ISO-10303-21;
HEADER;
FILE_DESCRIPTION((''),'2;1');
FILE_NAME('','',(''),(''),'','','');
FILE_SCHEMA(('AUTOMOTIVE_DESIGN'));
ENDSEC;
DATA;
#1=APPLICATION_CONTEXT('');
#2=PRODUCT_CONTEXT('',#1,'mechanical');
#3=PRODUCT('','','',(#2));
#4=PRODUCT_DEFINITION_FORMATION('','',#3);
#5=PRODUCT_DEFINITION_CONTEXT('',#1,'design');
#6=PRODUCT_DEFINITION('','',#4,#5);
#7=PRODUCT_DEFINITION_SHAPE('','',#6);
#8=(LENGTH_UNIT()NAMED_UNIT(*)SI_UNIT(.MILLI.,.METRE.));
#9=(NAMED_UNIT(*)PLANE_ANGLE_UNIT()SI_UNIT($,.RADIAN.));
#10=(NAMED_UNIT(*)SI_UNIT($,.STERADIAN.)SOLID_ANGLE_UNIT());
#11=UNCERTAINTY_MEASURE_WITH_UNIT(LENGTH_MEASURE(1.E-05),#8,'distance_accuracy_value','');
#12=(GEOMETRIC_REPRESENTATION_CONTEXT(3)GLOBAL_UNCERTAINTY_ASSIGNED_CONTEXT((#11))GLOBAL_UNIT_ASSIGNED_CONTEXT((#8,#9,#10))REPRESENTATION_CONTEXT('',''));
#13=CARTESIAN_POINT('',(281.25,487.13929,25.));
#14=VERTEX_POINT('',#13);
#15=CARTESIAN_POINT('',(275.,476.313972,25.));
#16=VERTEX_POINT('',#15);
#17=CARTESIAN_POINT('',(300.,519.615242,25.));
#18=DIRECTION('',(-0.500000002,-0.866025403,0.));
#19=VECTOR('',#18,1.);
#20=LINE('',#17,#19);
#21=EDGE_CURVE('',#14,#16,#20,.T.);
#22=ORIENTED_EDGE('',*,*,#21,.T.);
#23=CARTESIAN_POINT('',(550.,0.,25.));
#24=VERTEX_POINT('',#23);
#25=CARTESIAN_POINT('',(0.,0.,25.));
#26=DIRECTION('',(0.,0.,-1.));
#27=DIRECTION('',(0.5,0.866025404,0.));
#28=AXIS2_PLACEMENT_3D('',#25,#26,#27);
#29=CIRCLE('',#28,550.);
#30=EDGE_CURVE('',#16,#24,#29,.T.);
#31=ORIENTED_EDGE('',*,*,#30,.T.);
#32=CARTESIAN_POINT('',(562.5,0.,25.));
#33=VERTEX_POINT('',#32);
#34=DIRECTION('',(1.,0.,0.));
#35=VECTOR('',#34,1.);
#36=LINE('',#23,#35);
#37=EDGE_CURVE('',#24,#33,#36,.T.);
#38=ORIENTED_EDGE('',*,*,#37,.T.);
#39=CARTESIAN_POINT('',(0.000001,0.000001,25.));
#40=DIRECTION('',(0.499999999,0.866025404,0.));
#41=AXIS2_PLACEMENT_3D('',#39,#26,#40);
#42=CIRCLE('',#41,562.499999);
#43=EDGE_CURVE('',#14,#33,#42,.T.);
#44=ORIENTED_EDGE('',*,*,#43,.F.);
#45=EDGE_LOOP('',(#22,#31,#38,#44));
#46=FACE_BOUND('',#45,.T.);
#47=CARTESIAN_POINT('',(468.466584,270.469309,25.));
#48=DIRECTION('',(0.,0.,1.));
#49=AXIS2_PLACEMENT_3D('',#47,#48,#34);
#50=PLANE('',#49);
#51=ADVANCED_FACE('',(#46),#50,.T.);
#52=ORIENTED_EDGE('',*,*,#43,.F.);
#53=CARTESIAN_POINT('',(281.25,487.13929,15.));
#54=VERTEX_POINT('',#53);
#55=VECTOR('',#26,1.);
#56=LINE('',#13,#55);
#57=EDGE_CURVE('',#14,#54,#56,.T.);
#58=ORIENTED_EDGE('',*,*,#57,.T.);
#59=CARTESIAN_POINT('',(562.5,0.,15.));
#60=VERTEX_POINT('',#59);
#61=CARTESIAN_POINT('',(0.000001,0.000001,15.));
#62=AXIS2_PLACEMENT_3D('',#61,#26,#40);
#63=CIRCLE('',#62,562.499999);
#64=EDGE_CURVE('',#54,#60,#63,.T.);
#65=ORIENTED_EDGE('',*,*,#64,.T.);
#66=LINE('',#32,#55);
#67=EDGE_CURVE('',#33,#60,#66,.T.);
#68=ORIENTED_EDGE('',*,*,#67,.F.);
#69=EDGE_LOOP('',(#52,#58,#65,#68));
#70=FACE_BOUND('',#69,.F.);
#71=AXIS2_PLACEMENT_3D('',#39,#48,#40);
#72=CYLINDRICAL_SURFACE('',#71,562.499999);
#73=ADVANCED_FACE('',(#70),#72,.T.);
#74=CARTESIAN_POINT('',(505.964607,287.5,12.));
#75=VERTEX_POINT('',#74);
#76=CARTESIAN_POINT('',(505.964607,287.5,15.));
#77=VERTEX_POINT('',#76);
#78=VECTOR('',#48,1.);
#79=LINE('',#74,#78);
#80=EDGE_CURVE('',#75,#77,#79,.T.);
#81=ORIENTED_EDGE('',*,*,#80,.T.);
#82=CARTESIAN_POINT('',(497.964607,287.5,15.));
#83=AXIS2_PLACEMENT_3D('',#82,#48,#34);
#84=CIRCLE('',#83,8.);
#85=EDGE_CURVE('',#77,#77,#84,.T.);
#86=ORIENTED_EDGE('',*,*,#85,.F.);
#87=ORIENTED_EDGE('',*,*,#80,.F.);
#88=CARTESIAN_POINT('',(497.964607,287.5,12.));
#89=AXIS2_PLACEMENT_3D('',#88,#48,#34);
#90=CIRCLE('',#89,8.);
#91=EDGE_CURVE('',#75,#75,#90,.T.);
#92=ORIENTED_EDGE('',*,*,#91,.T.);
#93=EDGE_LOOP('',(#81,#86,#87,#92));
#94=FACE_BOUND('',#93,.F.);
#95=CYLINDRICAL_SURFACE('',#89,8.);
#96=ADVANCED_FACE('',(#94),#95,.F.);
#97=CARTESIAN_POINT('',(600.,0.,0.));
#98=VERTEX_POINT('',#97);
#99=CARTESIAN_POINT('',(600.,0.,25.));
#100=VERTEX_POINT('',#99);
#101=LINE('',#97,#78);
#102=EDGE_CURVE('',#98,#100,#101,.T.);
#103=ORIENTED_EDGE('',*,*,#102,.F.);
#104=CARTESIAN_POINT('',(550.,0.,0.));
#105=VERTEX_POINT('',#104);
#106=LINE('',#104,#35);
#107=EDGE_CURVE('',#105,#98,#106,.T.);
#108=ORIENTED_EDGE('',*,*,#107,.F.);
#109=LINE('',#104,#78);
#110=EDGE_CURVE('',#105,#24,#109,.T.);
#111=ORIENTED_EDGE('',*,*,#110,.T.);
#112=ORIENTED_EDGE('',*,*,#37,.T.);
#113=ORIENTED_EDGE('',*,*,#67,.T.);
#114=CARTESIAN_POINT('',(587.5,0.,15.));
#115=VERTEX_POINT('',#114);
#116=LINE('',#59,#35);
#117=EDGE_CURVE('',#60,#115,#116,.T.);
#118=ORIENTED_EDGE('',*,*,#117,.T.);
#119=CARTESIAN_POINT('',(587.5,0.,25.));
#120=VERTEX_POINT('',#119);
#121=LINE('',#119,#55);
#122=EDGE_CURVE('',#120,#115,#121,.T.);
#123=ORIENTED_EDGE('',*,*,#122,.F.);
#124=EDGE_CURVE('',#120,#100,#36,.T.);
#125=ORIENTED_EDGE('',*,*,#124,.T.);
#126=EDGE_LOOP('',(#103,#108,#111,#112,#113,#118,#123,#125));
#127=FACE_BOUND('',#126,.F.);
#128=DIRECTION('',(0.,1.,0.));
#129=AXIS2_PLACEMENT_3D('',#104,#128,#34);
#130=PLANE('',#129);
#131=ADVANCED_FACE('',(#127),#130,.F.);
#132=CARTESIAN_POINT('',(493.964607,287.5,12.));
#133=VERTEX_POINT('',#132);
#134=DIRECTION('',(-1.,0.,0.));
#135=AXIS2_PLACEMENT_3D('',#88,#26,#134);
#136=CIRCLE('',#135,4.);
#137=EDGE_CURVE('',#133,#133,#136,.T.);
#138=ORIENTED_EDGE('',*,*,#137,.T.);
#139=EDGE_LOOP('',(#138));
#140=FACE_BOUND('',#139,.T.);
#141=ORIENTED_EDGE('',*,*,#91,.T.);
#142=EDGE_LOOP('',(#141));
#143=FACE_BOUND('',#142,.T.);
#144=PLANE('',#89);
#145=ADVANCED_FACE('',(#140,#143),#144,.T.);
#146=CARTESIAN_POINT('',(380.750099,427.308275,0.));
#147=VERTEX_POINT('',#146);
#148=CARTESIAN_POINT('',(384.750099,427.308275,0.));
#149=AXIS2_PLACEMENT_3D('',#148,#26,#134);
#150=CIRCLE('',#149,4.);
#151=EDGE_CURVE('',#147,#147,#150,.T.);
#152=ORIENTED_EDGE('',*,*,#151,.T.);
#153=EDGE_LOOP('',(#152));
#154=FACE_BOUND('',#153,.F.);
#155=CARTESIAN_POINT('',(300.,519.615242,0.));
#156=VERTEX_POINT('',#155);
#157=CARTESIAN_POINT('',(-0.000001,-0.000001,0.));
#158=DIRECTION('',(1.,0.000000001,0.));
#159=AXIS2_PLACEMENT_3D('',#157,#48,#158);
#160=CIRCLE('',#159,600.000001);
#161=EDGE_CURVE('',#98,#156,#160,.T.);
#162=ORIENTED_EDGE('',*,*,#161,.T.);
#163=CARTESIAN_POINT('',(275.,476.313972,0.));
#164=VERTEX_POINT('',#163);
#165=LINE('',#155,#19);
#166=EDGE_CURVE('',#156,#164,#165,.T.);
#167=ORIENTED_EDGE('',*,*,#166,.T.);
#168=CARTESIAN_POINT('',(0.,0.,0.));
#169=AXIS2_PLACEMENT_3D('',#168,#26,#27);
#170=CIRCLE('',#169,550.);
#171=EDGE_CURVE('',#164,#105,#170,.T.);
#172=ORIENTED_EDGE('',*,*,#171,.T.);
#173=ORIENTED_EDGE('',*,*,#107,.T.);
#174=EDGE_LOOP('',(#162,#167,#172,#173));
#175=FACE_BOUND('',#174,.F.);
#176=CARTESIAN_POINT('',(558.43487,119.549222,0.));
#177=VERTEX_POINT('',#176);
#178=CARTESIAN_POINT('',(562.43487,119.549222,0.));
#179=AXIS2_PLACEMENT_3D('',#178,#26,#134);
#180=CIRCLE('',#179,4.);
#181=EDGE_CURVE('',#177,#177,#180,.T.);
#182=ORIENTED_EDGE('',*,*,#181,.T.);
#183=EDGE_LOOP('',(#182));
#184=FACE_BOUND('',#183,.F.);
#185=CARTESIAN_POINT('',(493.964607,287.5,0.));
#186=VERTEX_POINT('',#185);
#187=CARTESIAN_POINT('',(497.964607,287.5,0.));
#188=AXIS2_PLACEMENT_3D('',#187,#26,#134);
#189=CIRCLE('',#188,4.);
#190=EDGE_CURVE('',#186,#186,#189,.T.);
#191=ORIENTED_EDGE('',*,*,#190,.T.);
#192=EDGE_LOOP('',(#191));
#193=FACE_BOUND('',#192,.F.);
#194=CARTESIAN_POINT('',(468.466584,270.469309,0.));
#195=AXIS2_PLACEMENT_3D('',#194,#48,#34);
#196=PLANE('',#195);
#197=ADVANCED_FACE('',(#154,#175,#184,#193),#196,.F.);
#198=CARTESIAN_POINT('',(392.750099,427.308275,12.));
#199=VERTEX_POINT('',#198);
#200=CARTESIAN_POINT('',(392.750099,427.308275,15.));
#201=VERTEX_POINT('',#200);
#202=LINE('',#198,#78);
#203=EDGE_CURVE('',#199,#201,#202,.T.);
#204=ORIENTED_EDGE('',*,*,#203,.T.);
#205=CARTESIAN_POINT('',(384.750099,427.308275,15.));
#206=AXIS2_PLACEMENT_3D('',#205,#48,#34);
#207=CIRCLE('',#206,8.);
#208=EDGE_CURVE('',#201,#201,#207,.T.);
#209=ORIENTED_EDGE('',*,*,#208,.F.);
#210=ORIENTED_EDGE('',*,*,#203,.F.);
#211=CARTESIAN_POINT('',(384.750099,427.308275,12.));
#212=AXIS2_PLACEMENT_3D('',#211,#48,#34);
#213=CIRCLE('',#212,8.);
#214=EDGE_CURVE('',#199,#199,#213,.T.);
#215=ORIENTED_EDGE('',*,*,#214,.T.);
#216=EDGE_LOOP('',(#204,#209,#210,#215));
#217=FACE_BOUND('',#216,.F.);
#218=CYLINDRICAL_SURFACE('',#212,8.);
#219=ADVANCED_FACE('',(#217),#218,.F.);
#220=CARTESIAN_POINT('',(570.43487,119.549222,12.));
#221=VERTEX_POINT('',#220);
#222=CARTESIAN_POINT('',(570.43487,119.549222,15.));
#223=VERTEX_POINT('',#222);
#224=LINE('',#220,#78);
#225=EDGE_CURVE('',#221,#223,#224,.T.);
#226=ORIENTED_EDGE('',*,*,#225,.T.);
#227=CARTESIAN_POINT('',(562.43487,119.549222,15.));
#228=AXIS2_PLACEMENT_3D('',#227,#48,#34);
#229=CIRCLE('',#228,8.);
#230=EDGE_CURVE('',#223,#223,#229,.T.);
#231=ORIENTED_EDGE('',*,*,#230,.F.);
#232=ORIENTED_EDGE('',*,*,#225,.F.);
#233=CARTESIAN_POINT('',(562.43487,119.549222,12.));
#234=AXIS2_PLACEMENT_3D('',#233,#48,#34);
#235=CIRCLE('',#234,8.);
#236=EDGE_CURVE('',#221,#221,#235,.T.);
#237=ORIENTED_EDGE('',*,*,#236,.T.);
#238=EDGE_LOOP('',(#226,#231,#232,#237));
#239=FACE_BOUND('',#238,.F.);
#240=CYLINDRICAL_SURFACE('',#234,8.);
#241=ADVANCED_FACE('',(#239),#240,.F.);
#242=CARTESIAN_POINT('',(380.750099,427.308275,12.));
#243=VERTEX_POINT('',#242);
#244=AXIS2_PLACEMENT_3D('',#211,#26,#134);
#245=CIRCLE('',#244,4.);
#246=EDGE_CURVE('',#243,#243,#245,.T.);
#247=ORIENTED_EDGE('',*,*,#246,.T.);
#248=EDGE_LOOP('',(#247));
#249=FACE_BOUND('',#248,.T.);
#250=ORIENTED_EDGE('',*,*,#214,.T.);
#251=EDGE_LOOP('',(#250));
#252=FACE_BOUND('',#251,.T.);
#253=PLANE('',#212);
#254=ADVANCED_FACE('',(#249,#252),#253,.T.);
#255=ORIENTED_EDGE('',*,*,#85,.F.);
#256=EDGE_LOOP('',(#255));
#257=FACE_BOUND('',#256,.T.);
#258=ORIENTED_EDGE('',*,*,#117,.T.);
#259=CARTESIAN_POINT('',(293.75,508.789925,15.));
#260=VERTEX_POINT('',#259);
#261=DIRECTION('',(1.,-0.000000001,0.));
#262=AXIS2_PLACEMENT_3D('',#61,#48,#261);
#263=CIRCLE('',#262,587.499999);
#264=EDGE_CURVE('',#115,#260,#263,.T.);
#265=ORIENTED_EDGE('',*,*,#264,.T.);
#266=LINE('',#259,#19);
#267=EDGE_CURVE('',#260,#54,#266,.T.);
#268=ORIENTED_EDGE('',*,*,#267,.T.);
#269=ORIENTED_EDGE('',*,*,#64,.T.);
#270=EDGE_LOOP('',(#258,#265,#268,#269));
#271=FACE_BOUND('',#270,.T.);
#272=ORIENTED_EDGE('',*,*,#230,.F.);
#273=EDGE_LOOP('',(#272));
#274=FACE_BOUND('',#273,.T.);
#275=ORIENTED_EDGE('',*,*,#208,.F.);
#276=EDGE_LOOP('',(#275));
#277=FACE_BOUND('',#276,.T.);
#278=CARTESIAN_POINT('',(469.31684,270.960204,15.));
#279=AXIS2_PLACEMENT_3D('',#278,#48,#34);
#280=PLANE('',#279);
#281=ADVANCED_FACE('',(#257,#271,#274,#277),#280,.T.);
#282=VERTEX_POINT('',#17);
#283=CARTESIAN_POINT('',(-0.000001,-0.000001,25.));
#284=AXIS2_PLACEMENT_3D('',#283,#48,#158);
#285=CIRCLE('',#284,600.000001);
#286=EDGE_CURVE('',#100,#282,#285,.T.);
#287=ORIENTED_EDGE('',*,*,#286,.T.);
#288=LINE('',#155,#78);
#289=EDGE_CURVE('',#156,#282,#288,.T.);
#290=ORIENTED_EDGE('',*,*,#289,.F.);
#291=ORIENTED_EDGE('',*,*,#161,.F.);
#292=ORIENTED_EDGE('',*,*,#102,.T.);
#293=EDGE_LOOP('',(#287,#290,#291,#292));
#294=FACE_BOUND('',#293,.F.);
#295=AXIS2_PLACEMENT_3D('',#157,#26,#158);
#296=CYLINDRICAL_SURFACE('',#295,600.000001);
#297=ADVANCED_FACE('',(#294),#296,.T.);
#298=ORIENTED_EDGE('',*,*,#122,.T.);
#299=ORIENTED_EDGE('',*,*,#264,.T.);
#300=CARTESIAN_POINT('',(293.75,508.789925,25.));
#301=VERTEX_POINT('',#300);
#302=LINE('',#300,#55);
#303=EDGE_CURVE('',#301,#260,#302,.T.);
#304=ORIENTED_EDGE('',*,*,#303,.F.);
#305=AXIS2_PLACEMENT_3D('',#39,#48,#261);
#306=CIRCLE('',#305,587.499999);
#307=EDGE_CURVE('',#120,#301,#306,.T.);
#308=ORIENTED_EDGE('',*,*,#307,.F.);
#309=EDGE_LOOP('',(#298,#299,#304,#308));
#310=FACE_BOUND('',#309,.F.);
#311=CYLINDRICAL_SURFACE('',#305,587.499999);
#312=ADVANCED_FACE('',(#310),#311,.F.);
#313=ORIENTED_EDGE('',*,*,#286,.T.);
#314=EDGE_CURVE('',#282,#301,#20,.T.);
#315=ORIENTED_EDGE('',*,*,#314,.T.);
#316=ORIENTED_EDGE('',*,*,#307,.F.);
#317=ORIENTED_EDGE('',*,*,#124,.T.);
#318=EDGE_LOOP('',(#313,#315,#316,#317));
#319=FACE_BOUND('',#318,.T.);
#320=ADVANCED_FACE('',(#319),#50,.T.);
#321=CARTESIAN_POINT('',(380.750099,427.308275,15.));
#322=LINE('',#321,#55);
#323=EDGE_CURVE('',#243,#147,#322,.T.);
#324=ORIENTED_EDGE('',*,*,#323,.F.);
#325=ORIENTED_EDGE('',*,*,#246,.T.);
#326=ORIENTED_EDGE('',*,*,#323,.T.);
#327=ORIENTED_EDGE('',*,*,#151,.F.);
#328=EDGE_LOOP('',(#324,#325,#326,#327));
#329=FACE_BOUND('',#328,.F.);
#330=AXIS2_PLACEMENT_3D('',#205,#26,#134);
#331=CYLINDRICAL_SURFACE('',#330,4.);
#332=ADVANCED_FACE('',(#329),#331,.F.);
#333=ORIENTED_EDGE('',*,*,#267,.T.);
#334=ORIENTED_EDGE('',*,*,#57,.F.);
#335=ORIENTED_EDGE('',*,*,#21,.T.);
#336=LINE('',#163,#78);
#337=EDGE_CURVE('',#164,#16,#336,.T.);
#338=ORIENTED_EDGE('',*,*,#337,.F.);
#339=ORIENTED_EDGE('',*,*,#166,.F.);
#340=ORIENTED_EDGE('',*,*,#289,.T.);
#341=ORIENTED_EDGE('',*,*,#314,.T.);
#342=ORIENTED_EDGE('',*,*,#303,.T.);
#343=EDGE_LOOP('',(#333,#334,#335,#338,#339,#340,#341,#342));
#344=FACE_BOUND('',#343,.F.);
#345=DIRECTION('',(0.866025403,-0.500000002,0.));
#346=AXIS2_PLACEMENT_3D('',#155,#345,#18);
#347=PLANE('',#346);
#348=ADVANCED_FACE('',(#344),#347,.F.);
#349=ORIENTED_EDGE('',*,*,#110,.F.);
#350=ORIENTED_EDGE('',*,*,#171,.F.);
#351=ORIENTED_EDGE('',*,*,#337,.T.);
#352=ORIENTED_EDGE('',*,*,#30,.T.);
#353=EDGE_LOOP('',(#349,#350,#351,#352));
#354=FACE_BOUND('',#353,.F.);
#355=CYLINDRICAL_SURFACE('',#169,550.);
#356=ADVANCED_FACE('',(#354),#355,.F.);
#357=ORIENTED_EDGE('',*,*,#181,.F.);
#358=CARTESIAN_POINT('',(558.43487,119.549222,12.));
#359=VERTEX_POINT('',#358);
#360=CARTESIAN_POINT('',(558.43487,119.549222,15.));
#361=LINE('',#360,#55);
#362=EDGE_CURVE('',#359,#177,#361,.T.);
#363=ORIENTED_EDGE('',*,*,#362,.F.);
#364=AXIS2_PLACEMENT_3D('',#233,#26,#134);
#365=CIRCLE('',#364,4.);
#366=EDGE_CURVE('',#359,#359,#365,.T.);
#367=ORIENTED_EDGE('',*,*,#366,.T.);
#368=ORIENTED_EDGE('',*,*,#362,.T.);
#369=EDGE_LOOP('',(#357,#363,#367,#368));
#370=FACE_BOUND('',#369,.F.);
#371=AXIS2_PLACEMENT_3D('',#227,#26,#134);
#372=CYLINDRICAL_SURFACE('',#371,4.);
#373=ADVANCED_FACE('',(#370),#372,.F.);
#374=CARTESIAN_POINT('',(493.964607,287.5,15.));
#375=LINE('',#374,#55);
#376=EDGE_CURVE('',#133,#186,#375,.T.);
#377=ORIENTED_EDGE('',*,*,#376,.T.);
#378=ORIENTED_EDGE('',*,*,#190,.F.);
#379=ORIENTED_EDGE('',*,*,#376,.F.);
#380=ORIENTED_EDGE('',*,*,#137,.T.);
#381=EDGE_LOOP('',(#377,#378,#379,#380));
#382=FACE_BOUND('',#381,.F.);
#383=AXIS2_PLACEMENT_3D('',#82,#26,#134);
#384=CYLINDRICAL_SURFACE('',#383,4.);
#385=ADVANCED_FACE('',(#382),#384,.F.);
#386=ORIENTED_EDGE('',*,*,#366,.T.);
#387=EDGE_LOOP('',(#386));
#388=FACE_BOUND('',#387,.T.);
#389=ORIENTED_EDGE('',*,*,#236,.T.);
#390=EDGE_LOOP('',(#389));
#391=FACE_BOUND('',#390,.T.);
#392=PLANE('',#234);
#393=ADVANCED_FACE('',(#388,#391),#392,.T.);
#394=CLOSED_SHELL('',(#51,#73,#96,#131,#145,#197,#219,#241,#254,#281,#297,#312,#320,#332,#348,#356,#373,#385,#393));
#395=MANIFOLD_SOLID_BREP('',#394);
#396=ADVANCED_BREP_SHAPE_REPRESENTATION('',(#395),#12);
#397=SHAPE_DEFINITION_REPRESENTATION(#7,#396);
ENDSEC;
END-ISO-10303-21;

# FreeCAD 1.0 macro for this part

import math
import FreeCAD as App
import Part
import Sketcher
Q = App.Units.Quantity

doc = App.newDocument("Part")
body = doc.addObject("PartDesign::Body", "Body")

# Sketch on XY plane
sketch1 = doc.addObject("Sketcher::SketchObject", "Sketch")
body.addObject(sketch1)
sketch1.AttachmentSupport = (doc.XY_Plane, [""])
sketch1.MapMode = "FlatFace"
sketch1.addGeometry([
    Part.LineSegment(App.Vector(300, 520, 0), App.Vector(275, 476, 0)),
    Part.ArcOfCircle(Part.Circle(App.Vector(0, 0, 0), App.Vector(0, 0, 1), 550), math.radians(0), math.radians(60)),
    Part.LineSegment(App.Vector(550, 0, 0), App.Vector(600, 0, 0)),
    Part.ArcOfCircle(Part.Circle(App.Vector(0, 0, 0), App.Vector(0, 0, 1), 600), math.radians(0), math.radians(60)),
], False)
sketch1.addConstraint([
    Sketcher.Constraint("Coincident", 0, 2, 1, 2),
    Sketcher.Constraint("Coincident", 1, 1, 2, 1),
    Sketcher.Constraint("Coincident", 2, 2, 3, 1),
    Sketcher.Constraint("Coincident", 3, 2, 0, 1),
    Sketcher.Constraint("Horizontal", 2),
    Sketcher.Constraint("Coincident", 1, 3, -1, 1),
    Sketcher.Constraint("Coincident", 3, 3, -1, 1),
    Sketcher.Constraint("PointOnObject", 2, 2, -1),
    Sketcher.Constraint("Radius", 1, Q("550 mm")),
    Sketcher.Constraint("Radius", 3, Q("600.000001 mm")),
    Sketcher.Constraint("Angle", 0, Q("-120 deg")),
    Sketcher.Constraint("DistanceX", -1, 1, 0, 2, Q("275 mm")),
])
pad1 = doc.addObject("PartDesign::Pad", "Pad")
body.addObject(pad1)
pad1.Profile = sketch1
pad1.Length = 25

# Sketch on XY plane
sketch2 = doc.addObject("Sketcher::SketchObject", "Sketch001")
body.addObject(sketch2)
sketch2.AttachmentSupport = (doc.XY_Plane, [""])
sketch2.MapMode = "FlatFace"
sketch2.AttachmentOffset = App.Placement(App.Vector(0, 0, 25), App.Rotation())
sketch2.addGeometry([
    Part.LineSegment(App.Vector(294, 509, 0), App.Vector(281, 487, 0)),
    Part.ArcOfCircle(Part.Circle(App.Vector(0, 0, 0), App.Vector(0, 0, 1), 562), math.radians(0), math.radians(60)),
    Part.LineSegment(App.Vector(562, 0, 0), App.Vector(588, 0, 0)),
    Part.ArcOfCircle(Part.Circle(App.Vector(0, 0, 0), App.Vector(0, 0, 1), 587), math.radians(0), math.radians(60)),
], False)
sketch2.addConstraint([
    Sketcher.Constraint("Coincident", 0, 2, 1, 2),
    Sketcher.Constraint("Coincident", 1, 1, 2, 1),
    Sketcher.Constraint("Coincident", 2, 2, 3, 1),
    Sketcher.Constraint("Coincident", 3, 2, 0, 1),
    Sketcher.Constraint("Horizontal", 2),
    Sketcher.Constraint("Coincident", 1, 3, -1, 1),
    Sketcher.Constraint("Coincident", 3, 3, -1, 1),
    Sketcher.Constraint("PointOnObject", 2, 2, -1),
    Sketcher.Constraint("Radius", 1, Q("562.499999 mm")),
    Sketcher.Constraint("Radius", 3, Q("587.499999 mm")),
    Sketcher.Constraint("Angle", 0, Q("-120 deg")),
    Sketcher.Constraint("DistanceX", -1, 1, 0, 2, Q("281.25 mm")),
])
pocket1 = doc.addObject("PartDesign::Pocket", "Pocket")
body.addObject(pocket1)
pocket1.Profile = sketch2
pocket1.Length = 10

# Sketch on XY plane
sketch3 = doc.addObject("Sketcher::SketchObject", "Sketch002")
body.addObject(sketch3)
sketch3.AttachmentSupport = (doc.XY_Plane, [""])
sketch3.MapMode = "FlatFace"
sketch3.AttachmentOffset = App.Placement(App.Vector(0, 0, 15), App.Rotation())
sketch3.addGeometry([
    Part.Circle(App.Vector(498, 287.5, 0), App.Vector(0, 0, 1), 4),
    Part.Circle(App.Vector(384.8, 427.3, 0), App.Vector(0, 0, 1), 4),
    Part.Circle(App.Vector(562.4, 119.5, 0), App.Vector(0, 0, 1), 4),
], False)
sketch3.addConstraint([
    Sketcher.Constraint("Equal", 0, 1),
    Sketcher.Constraint("Equal", 1, 2),
    Sketcher.Constraint("Diameter", 0, Q("8 mm")),
    Sketcher.Constraint("DistanceY", -1, 1, 0, 3, Q("287.5 mm")),
    Sketcher.Constraint("DistanceX", -1, 1, 1, 3, Q("384.750099 mm")),
    Sketcher.Constraint("DistanceX", -1, 1, 2, 3, Q("562.43487 mm")),
    Sketcher.Constraint("DistanceY", -1, 1, 2, 3, Q("119.549222 mm")),
    Sketcher.Constraint("DistanceX", 1, 3, 0, 3, Q("113.214508 mm")),
    Sketcher.Constraint("DistanceY", -1, 1, 1, 3, Q("427.308275 mm")),
])
doc.recompute()
hole = doc.addObject("PartDesign::Hole", "Hole")
body.addObject(hole)
hole.Profile = sketch3
hole.ThreadType = "None"
hole.Diameter = 8
hole.DepthType = "ThroughAll"
hole.HoleCutType = "Counterbore"
hole.HoleCutDiameter = 16
hole.HoleCutDepth = 3

doc.recompute()
